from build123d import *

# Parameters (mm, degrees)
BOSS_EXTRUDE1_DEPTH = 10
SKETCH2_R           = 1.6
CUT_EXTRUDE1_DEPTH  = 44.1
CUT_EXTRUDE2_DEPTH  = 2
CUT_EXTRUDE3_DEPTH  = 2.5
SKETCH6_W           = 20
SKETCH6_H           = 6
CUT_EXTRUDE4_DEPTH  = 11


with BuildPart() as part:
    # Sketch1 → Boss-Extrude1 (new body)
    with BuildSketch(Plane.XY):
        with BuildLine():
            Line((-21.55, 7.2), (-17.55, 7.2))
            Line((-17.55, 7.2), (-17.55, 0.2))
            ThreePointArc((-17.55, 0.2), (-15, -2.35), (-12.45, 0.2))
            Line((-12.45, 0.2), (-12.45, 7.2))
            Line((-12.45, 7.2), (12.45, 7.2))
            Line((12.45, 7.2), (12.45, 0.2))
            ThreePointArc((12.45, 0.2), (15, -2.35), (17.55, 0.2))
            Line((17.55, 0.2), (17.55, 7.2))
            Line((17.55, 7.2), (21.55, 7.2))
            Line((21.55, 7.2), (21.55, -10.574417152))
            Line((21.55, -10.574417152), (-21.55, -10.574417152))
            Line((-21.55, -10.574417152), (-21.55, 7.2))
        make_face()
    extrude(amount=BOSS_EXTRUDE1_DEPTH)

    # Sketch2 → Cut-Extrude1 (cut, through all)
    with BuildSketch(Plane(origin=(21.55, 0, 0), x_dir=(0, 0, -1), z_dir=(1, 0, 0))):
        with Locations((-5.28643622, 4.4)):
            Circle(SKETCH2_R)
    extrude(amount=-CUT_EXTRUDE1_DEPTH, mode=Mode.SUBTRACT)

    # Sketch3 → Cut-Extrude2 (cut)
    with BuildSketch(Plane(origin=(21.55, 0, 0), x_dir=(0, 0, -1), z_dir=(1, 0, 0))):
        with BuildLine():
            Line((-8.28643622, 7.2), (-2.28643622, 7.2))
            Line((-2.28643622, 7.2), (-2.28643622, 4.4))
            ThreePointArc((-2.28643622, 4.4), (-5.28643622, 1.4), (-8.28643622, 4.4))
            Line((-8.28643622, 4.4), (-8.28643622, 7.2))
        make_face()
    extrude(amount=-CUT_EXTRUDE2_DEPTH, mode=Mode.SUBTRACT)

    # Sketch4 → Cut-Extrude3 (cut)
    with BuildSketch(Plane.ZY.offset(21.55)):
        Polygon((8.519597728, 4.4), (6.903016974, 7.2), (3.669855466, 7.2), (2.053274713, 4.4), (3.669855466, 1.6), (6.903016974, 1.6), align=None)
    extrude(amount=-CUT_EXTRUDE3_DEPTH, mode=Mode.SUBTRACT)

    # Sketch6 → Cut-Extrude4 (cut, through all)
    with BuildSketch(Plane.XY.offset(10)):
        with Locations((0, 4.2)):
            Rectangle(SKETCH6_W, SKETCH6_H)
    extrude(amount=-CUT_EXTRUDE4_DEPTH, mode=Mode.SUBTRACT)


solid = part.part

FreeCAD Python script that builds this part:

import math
import FreeCAD as App
import Part
import Sketcher
Q = App.Units.Quantity


def add_polygon(sketch, points):
    """Adds a closed chain of lines whose ends are joined by coincident constraints."""
    first, n = sketch.GeometryCount, len(points)
    for a, b in zip(points, points[1:] + points[:1]):
        sketch.addGeometry(Part.LineSegment(App.Vector(*a, 0), App.Vector(*b, 0)), False)
    for i in range(n):
        sketch.addConstraint(Sketcher.Constraint("Coincident", first + i, 2, first + (i + 1) % n, 1))

doc = App.newDocument("Part")
body = doc.addObject("PartDesign::Body", "Body")

sketch1 = doc.addObject("Sketcher::SketchObject", "Sketch")
body.addObject(sketch1)
sketch1.AttachmentSupport = (doc.XY_Plane, [""])
sketch1.MapMode = "FlatFace"
sketch1.addGeometry([
    Part.LineSegment(App.Vector(-17.55, 7.2, 0), App.Vector(-21.55, 7.2, 0)),
    Part.LineSegment(App.Vector(-21.55, 7.2, 0), App.Vector(-21.55, -10.574417, 0)),
    Part.LineSegment(App.Vector(-21.55, -10.574417, 0), App.Vector(21.55, -10.574417, 0)),
    Part.LineSegment(App.Vector(21.55, -10.574417, 0), App.Vector(21.55, 7.2, 0)),
    Part.LineSegment(App.Vector(21.55, 7.2, 0), App.Vector(17.55, 7.2, 0)),
    Part.LineSegment(App.Vector(17.55, 7.2, 0), App.Vector(17.55, 0.2, 0)),
    Part.ArcOfCircle(Part.Circle(App.Vector(15, 0.2, 0), App.Vector(0, 0, 1), 2.55), math.radians(180), math.radians(360)),
    Part.LineSegment(App.Vector(12.45, 0.2, 0), App.Vector(12.45, 7.2, 0)),
    Part.LineSegment(App.Vector(12.45, 7.2, 0), App.Vector(-12.45, 7.2, 0)),
    Part.LineSegment(App.Vector(-12.45, 7.2, 0), App.Vector(-12.45, 0.2, 0)),
    Part.ArcOfCircle(Part.Circle(App.Vector(-15, 0.2, 0), App.Vector(0, 0, 1), 2.55), math.radians(180), math.radians(360)),
    Part.LineSegment(App.Vector(-17.55, 0.2, 0), App.Vector(-17.55, 7.2, 0)),
], False)
sketch1.addConstraint([
    Sketcher.Constraint("Coincident", 0, 2, 1, 1),
    Sketcher.Constraint("Coincident", 1, 2, 2, 1),
    Sketcher.Constraint("Coincident", 2, 2, 3, 1),
    Sketcher.Constraint("Coincident", 3, 2, 4, 1),
    Sketcher.Constraint("Coincident", 4, 2, 5, 1),
    Sketcher.Constraint("Tangent", 5, 2, 6, 2),
    Sketcher.Constraint("Tangent", 6, 1, 7, 1),
    Sketcher.Constraint("Coincident", 7, 2, 8, 1),
    Sketcher.Constraint("Coincident", 8, 2, 9, 1),
    Sketcher.Constraint("Tangent", 9, 2, 10, 2),
    Sketcher.Constraint("Tangent", 10, 1, 11, 1),
    Sketcher.Constraint("Coincident", 11, 2, 0, 1),
    Sketcher.Constraint("Horizontal", 0),
    Sketcher.Constraint("Vertical", 1),
    Sketcher.Constraint("Horizontal", 2),
    Sketcher.Constraint("Vertical", 3),
    Sketcher.Constraint("Horizontal", 4),
    Sketcher.Constraint("Vertical", 5),
    Sketcher.Constraint("Vertical", 7),
    Sketcher.Constraint("Horizontal", 8),
    Sketcher.Constraint("Vertical", 9),
    Sketcher.Constraint("Vertical", 11),
    Sketcher.Constraint("Equal", 6, 10),
    Sketcher.Constraint("Symmetric", 6, 3, 10, 3, -2),
    Sketcher.Constraint("Symmetric", 0, 2, 3, 2, -2),
    Sketcher.Constraint("Horizontal", 4, 2, 7, 2),
    Sketcher.Constraint("DistanceX", 0, 2, 0, 1, 4.0),
    Sketcher.Constraint("DistanceY", 5, 2, 5, 1, 7.0),
    Sketcher.Constraint("Radius", 6, 2.55),
    Sketcher.Constraint("DistanceX", 2, 1, 2, 2, 43.1),
    Sketcher.Constraint("DistanceY", -1, 1, 6, 3, 0.2),
    Sketcher.Constraint("DistanceY", 1, 2, 1, 1, 17.774417),
])
pad1 = doc.addObject("PartDesign::Pad", "Pad")
body.addObject(pad1)
pad1.Profile = sketch1
pad1.Length = 10

sketch2 = doc.addObject("Sketcher::SketchObject", "Sketch001")
body.addObject(sketch2)
sketch2.AttachmentSupport = (doc.YZ_Plane, [""])
sketch2.MapMode = "FlatFace"
sketch2.AttachmentOffset = App.Placement(App.Vector(0, 0, 21.55), App.Rotation())
sketch2.addGeometry(Part.Circle(App.Vector(4.4, 5.286436, 0), App.Vector(0, 0, 1), 1.6), False)
sketch2.addConstraint([
    Sketcher.Constraint("Diameter", 0, 3.2),
    Sketcher.Constraint("DistanceX", -1, 1, 0, 3, 4.4),
    Sketcher.Constraint("DistanceY", -1, 1, 0, 3, 5.286436),
])
pocket1 = doc.addObject("PartDesign::Pocket", "Pocket")
body.addObject(pocket1)
pocket1.Profile = sketch2
pocket1.Type = "ThroughAll"

sketch3 = doc.addObject("Sketcher::SketchObject", "Sketch002")
body.addObject(sketch3)
sketch3.AttachmentSupport = (doc.YZ_Plane, [""])
sketch3.MapMode = "FlatFace"
sketch3.AttachmentOffset = App.Placement(App.Vector(0, 0, 21.55), App.Rotation())
sketch3.addGeometry([
    Part.LineSegment(App.Vector(7.2, 2.286436, 0), App.Vector(7.2, 8.286436, 0)),
    Part.LineSegment(App.Vector(7.2, 8.286436, 0), App.Vector(4.4, 8.286436, 0)),
    Part.ArcOfCircle(Part.Circle(App.Vector(4.4, 5.286436, 0), App.Vector(0, 0, 1), 3), math.radians(90), math.radians(270)),
    Part.LineSegment(App.Vector(4.4, 2.286436, 0), App.Vector(7.2, 2.286436, 0)),
], False)
sketch3.addConstraint([
    Sketcher.Constraint("Coincident", 0, 2, 1, 1),
    Sketcher.Constraint("Tangent", 1, 2, 2, 1),
    Sketcher.Constraint("Tangent", 2, 2, 3, 1),
    Sketcher.Constraint("Coincident", 3, 2, 0, 1),
    Sketcher.Constraint("Vertical", 0),
    Sketcher.Constraint("Horizontal", 1),
    Sketcher.Constraint("Horizontal", 3),
    Sketcher.Constraint("Radius", 2, 3.0),
    Sketcher.Constraint("DistanceX", 1, 2, 1, 1, 2.8),
    Sketcher.Constraint("DistanceX", -1, 1, 2, 3, 4.4),
    Sketcher.Constraint("DistanceY", -1, 1, 2, 3, 5.286436),
])
pocket2 = doc.addObject("PartDesign::Pocket", "Pocket001")
body.addObject(pocket2)
pocket2.Profile = sketch3
pocket2.Length = 2

sketch4 = doc.addObject("Sketcher::SketchObject", "Sketch003")
body.addObject(sketch4)
sketch4.AttachmentSupport = (doc.YZ_Plane, [""])
sketch4.MapMode = "FlatFace"
sketch4.AttachmentOffset = App.Placement(App.Vector(0, 0, -21.55), App.Rotation())
add_polygon(sketch4, [(4.4, 8.519598), (7.2, 6.903017), (7.2, 3.669855), (4.4, 2.053275), (1.6, 3.669855), (1.6, 6.903017)])
sketch4.addConstraint([
    Sketcher.Constraint("Vertical", 1),
    Sketcher.Constraint("Vertical", 4),
    Sketcher.Constraint("Parallel", 0, 3),
    Sketcher.Constraint("Parallel", 2, 5),
    Sketcher.Constraint("Horizontal", 1, 2, 3, 2),
    Sketcher.Constraint("Horizontal", 0, 2, 4, 2),
    Sketcher.Constraint("Vertical", 2, 2, 5, 2),
    Sketcher.Constraint("Angle", 0, Q("-30 deg")),
    Sketcher.Constraint("DistanceX", -1, 1, 0, 2, 7.2),
    Sketcher.Constraint("DistanceX", -1, 1, 2, 2, 4.4),
    Sketcher.Constraint("DistanceY", 1, 2, 1, 1, 3.233162),
    Sketcher.Constraint("DistanceY", -1, 1, 0, 2, 6.903017),
])
pocket3 = doc.addObject("PartDesign::Pocket", "Pocket002")
body.addObject(pocket3)
pocket3.Profile = sketch4
pocket3.Length = 2.5
pocket3.Reversed = True

sketch5 = doc.addObject("Sketcher::SketchObject", "Sketch004")
body.addObject(sketch5)
sketch5.AttachmentSupport = (doc.XY_Plane, [""])
sketch5.MapMode = "FlatFace"
sketch5.AttachmentOffset = App.Placement(App.Vector(0, 0, 10), App.Rotation())
add_polygon(sketch5, [(-10, 7.2), (-10, 1.2), (10, 1.2), (10, 7.2)])
sketch5.addConstraint([
    Sketcher.Constraint("Vertical", 0),
    Sketcher.Constraint("Horizontal", 1),
    Sketcher.Constraint("Vertical", 2),
    Sketcher.Constraint("Horizontal", 3),
    Sketcher.Constraint("DistanceX", 1, 1, 1, 2, 20.0),
    Sketcher.Constraint("DistanceY", 0, 2, 0, 1, 6.0),
    Sketcher.Constraint("DistanceX", 0, 2, -1, 1, 10.0),
    Sketcher.Constraint("DistanceY", -1, 1, 0, 2, 1.2),
])
pocket4 = doc.addObject("PartDesign::Pocket", "Pocket003")
body.addObject(pocket4)
pocket4.Profile = sketch5
pocket4.Type = "ThroughAll"

doc.recompute()
